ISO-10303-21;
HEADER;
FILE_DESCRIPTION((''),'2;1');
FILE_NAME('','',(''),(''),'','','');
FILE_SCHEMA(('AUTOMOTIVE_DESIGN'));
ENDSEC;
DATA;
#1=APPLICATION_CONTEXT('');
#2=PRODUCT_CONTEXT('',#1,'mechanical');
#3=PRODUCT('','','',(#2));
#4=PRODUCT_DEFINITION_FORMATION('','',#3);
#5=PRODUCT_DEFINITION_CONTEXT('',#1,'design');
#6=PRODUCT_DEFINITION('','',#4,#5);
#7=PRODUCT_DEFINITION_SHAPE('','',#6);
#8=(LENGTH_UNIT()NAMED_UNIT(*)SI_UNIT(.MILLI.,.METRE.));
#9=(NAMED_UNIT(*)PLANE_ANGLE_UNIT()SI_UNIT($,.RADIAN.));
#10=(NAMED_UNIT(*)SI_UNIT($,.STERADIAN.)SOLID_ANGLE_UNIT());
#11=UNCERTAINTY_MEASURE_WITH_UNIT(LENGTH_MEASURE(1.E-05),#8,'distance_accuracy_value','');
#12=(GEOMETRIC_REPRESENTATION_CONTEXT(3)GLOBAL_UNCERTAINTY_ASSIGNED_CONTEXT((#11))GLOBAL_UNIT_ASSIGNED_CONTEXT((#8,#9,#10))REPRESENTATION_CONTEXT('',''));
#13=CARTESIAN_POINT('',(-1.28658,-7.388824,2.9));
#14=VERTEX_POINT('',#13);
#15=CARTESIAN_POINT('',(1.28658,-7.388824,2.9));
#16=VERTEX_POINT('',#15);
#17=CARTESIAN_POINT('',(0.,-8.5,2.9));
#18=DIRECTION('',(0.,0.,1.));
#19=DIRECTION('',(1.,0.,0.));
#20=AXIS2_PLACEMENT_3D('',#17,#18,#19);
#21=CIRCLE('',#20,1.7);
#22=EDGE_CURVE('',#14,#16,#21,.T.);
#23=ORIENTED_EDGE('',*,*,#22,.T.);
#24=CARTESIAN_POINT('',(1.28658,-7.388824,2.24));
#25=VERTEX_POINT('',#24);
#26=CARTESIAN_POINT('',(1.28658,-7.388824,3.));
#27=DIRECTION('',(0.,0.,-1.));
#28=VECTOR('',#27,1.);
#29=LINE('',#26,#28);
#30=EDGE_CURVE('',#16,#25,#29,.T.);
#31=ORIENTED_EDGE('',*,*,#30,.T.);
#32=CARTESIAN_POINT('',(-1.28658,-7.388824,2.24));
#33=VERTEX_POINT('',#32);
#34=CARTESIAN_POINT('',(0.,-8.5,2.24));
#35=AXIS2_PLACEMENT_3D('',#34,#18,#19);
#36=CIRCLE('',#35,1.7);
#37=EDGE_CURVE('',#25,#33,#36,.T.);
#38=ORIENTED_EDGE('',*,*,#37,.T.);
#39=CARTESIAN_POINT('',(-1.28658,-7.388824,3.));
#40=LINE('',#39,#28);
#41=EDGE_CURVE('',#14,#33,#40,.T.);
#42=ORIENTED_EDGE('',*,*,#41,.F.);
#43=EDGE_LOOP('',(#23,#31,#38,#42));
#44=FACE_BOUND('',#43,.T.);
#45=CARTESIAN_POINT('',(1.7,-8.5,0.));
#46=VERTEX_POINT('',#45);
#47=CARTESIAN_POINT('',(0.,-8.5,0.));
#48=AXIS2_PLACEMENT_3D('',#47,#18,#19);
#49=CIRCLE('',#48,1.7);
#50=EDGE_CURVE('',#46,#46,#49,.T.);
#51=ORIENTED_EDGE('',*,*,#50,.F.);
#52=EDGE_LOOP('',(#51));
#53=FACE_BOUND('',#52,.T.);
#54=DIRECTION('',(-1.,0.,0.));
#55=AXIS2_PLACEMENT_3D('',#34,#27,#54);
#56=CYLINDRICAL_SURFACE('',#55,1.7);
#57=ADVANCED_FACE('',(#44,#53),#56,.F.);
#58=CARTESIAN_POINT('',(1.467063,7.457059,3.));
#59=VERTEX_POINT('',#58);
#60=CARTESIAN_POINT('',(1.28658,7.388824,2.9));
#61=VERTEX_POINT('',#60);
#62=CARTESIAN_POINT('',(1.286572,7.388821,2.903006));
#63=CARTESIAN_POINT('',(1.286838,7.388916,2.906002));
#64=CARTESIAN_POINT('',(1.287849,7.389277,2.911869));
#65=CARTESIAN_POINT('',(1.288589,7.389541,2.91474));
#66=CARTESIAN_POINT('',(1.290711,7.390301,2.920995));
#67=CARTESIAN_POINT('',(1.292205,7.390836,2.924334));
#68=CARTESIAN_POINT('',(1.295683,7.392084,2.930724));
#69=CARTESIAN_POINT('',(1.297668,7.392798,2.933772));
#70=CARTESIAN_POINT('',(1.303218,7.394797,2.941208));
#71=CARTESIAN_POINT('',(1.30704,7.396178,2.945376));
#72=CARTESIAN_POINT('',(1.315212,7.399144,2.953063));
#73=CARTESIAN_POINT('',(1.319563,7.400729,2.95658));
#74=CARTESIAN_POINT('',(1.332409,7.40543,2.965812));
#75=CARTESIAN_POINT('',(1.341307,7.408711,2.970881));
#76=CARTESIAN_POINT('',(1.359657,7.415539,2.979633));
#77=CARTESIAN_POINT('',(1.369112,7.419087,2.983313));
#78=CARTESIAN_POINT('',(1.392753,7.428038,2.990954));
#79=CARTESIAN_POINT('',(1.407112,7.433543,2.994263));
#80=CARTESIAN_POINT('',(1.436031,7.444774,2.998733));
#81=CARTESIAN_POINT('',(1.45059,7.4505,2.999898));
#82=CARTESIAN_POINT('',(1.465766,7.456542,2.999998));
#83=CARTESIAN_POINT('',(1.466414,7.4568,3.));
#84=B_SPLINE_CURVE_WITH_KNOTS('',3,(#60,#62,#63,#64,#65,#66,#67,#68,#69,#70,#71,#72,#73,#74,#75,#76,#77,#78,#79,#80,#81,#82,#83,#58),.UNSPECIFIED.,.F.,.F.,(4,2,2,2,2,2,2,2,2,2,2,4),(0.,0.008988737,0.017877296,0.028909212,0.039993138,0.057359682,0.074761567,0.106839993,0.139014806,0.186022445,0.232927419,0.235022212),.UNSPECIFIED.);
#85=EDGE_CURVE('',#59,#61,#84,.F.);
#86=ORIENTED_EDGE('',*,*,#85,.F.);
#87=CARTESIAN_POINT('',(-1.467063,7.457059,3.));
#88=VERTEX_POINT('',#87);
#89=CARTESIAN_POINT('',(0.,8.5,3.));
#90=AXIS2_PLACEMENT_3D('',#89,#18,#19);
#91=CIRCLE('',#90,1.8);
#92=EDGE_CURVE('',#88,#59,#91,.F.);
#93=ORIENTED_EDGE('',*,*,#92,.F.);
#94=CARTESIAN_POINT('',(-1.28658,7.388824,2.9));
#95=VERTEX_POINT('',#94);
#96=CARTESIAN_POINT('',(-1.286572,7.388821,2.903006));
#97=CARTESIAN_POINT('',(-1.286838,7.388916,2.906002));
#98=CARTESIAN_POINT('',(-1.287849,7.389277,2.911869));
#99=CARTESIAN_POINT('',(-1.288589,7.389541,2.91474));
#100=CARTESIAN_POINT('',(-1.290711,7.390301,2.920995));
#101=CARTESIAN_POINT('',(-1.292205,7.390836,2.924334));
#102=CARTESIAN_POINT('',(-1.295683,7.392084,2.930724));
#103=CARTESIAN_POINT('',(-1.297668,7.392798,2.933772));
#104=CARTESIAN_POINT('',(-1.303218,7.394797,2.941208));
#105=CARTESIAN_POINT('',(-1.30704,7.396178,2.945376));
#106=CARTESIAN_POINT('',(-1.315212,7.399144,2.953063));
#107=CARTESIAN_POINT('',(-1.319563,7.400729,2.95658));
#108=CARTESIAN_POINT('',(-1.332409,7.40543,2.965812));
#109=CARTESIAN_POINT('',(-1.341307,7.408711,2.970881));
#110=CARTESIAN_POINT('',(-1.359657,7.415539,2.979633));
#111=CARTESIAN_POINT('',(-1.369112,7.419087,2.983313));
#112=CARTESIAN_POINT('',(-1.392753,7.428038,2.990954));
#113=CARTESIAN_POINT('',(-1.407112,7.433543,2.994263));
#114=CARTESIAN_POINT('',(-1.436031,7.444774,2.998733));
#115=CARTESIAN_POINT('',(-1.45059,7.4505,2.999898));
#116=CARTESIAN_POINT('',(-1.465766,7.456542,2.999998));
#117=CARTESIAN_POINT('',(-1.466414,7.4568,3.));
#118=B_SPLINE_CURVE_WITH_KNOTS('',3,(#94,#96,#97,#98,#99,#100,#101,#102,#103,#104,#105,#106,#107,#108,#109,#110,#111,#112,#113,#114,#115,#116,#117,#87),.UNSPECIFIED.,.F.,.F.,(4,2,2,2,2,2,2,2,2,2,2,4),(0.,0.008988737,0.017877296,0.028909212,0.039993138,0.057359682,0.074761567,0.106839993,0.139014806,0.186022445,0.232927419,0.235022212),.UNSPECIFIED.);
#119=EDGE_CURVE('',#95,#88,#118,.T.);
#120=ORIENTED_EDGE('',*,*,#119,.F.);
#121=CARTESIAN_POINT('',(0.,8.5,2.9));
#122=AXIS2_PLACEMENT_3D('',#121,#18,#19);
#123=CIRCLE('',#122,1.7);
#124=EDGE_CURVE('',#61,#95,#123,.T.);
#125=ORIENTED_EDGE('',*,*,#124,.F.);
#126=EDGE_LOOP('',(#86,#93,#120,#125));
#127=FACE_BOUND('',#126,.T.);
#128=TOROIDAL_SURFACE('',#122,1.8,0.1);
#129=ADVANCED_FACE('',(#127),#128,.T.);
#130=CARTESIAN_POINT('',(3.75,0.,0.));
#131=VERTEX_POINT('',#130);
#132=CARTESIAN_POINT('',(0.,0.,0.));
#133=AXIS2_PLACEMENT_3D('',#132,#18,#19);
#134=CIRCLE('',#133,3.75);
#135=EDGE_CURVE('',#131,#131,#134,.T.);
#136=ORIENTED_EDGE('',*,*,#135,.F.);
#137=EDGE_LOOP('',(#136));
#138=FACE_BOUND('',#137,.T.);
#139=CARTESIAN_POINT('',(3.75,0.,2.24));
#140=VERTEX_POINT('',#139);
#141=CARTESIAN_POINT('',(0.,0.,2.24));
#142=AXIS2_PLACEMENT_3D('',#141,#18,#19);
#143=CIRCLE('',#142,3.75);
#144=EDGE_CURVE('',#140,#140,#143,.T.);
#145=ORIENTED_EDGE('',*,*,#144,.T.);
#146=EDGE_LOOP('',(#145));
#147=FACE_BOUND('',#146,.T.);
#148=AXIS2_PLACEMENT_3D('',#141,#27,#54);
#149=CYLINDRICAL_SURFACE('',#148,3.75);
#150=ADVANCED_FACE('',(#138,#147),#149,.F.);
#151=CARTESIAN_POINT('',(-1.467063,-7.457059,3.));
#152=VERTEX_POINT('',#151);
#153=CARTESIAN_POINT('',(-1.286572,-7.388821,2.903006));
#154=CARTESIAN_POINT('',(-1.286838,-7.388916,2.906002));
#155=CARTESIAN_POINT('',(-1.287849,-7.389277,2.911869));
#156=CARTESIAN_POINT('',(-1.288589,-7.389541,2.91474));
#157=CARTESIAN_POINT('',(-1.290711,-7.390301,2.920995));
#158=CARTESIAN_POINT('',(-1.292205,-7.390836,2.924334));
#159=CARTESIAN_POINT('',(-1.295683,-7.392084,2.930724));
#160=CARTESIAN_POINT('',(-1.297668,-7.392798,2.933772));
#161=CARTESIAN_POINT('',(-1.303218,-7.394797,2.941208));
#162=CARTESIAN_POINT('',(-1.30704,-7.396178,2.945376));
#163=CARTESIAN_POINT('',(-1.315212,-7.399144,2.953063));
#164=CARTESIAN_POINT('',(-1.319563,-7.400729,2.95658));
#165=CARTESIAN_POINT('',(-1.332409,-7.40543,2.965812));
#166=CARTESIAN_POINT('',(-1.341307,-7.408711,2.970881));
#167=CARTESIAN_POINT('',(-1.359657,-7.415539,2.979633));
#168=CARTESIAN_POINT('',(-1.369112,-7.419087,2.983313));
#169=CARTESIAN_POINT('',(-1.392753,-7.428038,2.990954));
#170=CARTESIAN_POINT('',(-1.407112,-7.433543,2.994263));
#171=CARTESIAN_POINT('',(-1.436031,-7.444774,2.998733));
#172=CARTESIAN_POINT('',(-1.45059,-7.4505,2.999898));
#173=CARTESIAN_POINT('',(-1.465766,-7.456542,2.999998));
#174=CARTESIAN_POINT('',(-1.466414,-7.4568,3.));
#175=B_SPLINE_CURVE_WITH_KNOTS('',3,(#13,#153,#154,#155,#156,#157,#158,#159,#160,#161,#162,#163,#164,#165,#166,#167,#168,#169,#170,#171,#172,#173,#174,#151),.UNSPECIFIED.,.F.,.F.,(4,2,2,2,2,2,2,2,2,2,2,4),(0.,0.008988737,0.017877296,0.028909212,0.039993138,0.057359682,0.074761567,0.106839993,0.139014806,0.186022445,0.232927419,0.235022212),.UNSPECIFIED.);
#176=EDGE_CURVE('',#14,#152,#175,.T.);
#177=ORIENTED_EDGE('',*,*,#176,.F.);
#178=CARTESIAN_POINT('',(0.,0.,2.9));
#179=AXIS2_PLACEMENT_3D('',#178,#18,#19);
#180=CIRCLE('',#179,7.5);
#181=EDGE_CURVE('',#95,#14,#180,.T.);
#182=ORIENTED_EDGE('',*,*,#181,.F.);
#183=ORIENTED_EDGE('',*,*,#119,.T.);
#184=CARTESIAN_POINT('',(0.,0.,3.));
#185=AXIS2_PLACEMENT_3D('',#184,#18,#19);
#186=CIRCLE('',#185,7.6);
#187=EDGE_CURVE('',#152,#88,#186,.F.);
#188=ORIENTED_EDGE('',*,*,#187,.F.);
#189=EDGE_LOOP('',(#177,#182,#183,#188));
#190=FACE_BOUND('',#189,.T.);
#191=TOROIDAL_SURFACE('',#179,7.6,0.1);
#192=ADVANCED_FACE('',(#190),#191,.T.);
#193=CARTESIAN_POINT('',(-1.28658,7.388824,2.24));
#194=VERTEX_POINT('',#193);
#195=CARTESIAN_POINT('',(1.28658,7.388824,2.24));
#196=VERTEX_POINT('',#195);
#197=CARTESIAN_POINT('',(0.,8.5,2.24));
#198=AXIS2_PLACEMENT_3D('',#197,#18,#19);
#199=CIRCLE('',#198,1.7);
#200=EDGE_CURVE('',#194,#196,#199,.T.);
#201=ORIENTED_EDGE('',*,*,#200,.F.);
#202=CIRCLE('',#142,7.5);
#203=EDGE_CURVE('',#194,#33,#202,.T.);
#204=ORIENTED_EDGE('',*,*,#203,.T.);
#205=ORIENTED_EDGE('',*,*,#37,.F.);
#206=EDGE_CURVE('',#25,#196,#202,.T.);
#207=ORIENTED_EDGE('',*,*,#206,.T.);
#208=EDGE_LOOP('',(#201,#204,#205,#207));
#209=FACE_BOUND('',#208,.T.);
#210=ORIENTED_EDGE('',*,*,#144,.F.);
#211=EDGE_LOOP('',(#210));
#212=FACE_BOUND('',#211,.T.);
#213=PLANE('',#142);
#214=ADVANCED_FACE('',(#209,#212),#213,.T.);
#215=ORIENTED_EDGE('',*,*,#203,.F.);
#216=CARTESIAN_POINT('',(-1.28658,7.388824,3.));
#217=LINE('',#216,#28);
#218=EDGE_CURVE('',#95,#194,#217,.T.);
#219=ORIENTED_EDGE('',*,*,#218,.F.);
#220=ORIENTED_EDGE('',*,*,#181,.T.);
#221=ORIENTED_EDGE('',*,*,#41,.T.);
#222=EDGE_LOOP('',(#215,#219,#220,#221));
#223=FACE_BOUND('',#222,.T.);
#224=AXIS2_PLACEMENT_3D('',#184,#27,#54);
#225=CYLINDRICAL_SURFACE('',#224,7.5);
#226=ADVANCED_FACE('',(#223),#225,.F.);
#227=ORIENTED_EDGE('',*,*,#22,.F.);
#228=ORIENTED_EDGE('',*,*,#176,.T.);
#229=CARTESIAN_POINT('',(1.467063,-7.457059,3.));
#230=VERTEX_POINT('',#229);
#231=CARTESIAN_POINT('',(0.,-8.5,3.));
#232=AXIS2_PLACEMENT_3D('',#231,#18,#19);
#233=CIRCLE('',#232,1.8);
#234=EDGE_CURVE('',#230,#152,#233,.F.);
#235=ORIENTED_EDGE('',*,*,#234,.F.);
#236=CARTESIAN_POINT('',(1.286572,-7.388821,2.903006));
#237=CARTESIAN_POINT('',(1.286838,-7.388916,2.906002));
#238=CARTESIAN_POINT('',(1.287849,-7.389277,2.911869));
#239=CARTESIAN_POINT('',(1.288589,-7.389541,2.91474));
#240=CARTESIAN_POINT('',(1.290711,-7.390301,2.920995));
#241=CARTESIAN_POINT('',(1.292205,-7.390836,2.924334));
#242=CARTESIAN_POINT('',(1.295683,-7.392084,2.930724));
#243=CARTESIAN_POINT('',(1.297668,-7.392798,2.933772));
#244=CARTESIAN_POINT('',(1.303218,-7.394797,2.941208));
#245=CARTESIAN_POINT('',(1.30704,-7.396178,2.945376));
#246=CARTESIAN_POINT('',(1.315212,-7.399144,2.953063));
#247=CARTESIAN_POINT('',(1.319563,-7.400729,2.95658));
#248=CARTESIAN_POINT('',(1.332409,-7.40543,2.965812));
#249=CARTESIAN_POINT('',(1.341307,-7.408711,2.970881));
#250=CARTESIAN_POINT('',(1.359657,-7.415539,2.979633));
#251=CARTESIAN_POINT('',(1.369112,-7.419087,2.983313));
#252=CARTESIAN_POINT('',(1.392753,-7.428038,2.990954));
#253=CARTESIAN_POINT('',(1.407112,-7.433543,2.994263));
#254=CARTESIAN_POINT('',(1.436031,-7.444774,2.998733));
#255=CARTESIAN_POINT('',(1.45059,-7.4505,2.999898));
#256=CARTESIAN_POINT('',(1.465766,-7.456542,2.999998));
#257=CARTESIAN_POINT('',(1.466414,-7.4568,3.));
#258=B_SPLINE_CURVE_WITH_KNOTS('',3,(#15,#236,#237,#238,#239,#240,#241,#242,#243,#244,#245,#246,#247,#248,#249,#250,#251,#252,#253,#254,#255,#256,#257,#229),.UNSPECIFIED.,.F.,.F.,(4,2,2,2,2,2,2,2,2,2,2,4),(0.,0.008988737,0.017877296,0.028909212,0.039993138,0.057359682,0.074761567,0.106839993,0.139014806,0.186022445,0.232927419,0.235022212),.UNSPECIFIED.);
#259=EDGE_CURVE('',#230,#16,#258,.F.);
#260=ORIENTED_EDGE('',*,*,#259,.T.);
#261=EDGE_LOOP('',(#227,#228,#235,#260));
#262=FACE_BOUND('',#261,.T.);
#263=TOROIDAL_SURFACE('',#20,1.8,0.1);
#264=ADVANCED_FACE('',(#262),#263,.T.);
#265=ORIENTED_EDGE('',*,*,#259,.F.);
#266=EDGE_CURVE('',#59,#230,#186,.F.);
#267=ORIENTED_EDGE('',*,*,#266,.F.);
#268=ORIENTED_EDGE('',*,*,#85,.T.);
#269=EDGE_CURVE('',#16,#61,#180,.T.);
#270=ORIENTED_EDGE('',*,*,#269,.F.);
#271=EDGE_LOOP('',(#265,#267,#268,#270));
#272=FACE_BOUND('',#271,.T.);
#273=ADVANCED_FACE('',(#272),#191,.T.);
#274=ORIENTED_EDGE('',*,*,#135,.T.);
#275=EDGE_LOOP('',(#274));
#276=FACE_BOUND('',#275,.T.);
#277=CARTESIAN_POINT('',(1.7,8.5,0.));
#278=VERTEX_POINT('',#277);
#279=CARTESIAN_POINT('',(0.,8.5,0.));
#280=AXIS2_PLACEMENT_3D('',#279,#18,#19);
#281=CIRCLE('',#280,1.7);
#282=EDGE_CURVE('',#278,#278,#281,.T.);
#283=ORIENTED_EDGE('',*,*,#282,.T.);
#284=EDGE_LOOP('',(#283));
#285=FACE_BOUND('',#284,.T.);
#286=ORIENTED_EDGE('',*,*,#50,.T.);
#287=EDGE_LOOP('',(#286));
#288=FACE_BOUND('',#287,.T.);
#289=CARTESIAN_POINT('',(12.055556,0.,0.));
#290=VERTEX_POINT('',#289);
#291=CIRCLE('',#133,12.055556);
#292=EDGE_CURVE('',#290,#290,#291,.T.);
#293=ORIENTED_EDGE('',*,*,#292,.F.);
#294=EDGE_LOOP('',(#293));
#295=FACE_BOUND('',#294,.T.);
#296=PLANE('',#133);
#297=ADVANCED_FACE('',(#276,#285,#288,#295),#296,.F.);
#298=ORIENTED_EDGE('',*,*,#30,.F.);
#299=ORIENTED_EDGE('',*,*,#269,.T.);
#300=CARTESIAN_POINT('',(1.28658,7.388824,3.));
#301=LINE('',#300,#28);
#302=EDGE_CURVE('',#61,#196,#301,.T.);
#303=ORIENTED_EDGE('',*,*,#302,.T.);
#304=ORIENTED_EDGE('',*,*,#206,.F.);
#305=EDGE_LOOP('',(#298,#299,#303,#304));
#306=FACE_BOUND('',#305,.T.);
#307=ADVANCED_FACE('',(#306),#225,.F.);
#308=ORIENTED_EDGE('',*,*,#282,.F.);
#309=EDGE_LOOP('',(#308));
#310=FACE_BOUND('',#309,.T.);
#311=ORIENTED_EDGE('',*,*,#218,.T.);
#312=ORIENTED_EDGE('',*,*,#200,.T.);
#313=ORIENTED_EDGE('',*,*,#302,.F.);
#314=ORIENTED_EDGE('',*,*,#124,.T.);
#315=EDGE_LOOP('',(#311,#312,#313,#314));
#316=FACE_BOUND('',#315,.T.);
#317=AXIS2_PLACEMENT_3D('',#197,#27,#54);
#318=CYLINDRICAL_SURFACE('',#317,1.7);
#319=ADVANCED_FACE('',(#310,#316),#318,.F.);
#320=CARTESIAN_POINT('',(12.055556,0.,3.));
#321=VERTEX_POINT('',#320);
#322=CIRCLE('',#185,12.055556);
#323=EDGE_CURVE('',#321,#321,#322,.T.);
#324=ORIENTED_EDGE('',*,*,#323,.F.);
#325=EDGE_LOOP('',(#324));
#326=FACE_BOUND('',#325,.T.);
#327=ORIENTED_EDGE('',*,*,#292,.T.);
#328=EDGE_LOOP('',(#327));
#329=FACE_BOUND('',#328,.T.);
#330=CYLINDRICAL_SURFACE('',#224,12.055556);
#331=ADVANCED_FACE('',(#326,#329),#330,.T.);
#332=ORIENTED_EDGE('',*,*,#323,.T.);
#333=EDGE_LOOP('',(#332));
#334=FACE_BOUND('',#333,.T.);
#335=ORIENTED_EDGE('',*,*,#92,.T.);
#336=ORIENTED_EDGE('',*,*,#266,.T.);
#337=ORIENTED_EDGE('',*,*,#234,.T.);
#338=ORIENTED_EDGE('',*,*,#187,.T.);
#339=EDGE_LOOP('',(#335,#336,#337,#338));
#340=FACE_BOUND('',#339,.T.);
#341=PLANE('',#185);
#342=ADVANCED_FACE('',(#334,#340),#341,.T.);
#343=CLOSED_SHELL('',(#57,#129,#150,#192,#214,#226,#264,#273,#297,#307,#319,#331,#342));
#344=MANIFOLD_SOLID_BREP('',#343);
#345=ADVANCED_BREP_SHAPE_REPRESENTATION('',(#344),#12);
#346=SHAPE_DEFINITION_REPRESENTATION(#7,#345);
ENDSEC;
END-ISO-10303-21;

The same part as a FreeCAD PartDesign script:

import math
import FreeCAD as App
import Part
import Sketcher
from FreeCAD import Vector


def edges_at(feature, points):
    """Names of the edges that pass closest to the given points."""
    edges = feature.Shape.Edges
    near = lambda p: min(range(len(edges)), key=lambda i: edges[i].distToShape(Part.Vertex(*p))[0])
    return sorted({f"Edge{near(p) + 1}" for p in points})

doc = App.newDocument("Part")
params = doc.addObject("Spreadsheet::Sheet", "Params")
for row, (alias, value) in enumerate([
    ("sketch1_diameter", "7.5 mm"),
    ("sketch1_radius", "7.5 mm"),
    ("sketch1_radius2", "1.7 mm"),
    ("pad1_length", "2.24 mm"),
    ("sketch2_radius", "1.7 mm"),
    ("sketch2_radius2", "7.5 mm"),
    ("pad2_length", "3 mm"),
    ("fillet_radius", "0.1 mm"),
], start=1):
    params.set(f"A{row}", alias)
    params.set(f"B{row}", "=" + value)
    params.setAlias(f"B{row}", alias)

body = doc.addObject("PartDesign::Body", "Body")

# Sketch on XY plane
sketch1 = body.newObject("Sketcher::SketchObject", "Sketch")
sketch1.AttachmentSupport = (doc.getObject("XY_Plane"), [""])
sketch1.MapMode = "FlatFace"
sketch1.addGeometry(Part.ArcOfCircle(Part.Circle(Vector(0, 0, 0), Vector(0, 0, 1), 7.5), math.radians(100), math.radians(190)), False)
sketch1.addGeometry(Part.ArcOfCircle(Part.Circle(Vector(0, 0, 0), Vector(0, 0, 1), 7.5), math.radians(-170), math.radians(-100)), False)
sketch1.addGeometry(Part.ArcOfCircle(Part.Circle(Vector(0, -8.5, 0), Vector(0, 0, 1), 1.7), math.radians(41), math.radians(139)), False)
sketch1.addGeometry(Part.ArcOfCircle(Part.Circle(Vector(0, 0, 0), Vector(0, 0, 1), 7.5), math.radians(-80), math.radians(10)), False)
sketch1.addGeometry(Part.ArcOfCircle(Part.Circle(Vector(0, 0, 0), Vector(0, 0, 1), 7.5), math.radians(10), math.radians(80)), False)
sketch1.addGeometry(Part.ArcOfCircle(Part.Circle(Vector(0, 8.5, 0), Vector(0, 0, 1), 1.7), math.radians(-139), math.radians(-41)), False)
sketch1.addGeometry(Part.Circle(Vector(0, 0, 0), Vector(0, 0, 1), 3.8), False)
sketch1.addConstraint(Sketcher.Constraint("Tangent", 0, 2, 1, 1))
sketch1.addConstraint(Sketcher.Constraint("Coincident", 1, 2, 2, 2))
sketch1.addConstraint(Sketcher.Constraint("Coincident", 2, 1, 3, 1))
sketch1.addConstraint(Sketcher.Constraint("Tangent", 3, 2, 4, 1))
sketch1.addConstraint(Sketcher.Constraint("Coincident", 4, 2, 5, 2))
sketch1.addConstraint(Sketcher.Constraint("Coincident", 5, 1, 0, 1))
sketch1.addConstraint(Sketcher.Constraint("Coincident", 0, 3, -1, 1))
sketch1.addConstraint(Sketcher.Constraint("Coincident", 3, 3, -1, 1))
sketch1.addConstraint(Sketcher.Constraint("Coincident", 6, 3, -1, 1))
sketch1.addConstraint(Sketcher.Constraint("Equal", 0, 1))
sketch1.addConstraint(Sketcher.Constraint("Equal", 1, 3))
sketch1.addConstraint(Sketcher.Constraint("Equal", 3, 4))
sketch1.addConstraint(Sketcher.Constraint("Equal", 2, 5))
sketch1.addConstraint(Sketcher.Constraint("Symmetric", 2, 3, 5, 3, -1, 1))
sketch1.addConstraint(Sketcher.Constraint("PointOnObject", 2, 3, -2))
sketch1.addConstraint(Sketcher.Constraint("Diameter", 6, 7.5))
sketch1.addConstraint(Sketcher.Constraint("Radius", 0, 7.5))
sketch1.addConstraint(Sketcher.Constraint("Radius", 2, 1.7))
sketch1.addConstraint(Sketcher.Constraint("DistanceY", 2, 3, 5, 3, 17.0))
sketch1.addConstraint(Sketcher.Constraint("DistanceX", 0, 2, -1, 1, 7.382691))
sketch1.addConstraint(Sketcher.Constraint("DistanceX", -1, 1, 3, 2, 7.382691))
sketch1.setExpression("Constraints[15]", "Params.sketch1_diameter")
sketch1.setExpression("Constraints[16]", "Params.sketch1_radius")
sketch1.setExpression("Constraints[17]", "Params.sketch1_radius2")
pad1 = body.newObject("PartDesign::Pad", "Pad")
pad1.Profile = sketch1
pad1.setExpression("Length", "Params.pad1_length")

# Sketch on XY plane
sketch2 = body.newObject("Sketcher::SketchObject", "Sketch001")
sketch2.AttachmentSupport = (doc.getObject("XY_Plane"), [""])
sketch2.MapMode = "FlatFace"
sketch2.addGeometry(Part.Circle(Vector(0, 0, 0), Vector(0, 0, 1), 12.1), False)
sketch2.addGeometry(Part.ArcOfCircle(Part.Circle(Vector(0, -8.5, 0), Vector(0, 0, 1), 1.7), math.radians(139), math.radians(360)), False)
sketch2.addGeometry(Part.ArcOfCircle(Part.Circle(Vector(0, 0, 0), Vector(0, 0, 1), 7.5), math.radians(-170), math.radians(-100)), False)
sketch2.addGeometry(Part.ArcOfCircle(Part.Circle(Vector(0, 0, 0), Vector(0, 0, 1), 7.5), math.radians(100), math.radians(190)), False)
sketch2.addGeometry(Part.ArcOfCircle(Part.Circle(Vector(0, 8.5, 0), Vector(0, 0, 1), 1.7), math.radians(0), math.radians(221)), False)
sketch2.addGeometry(Part.ArcOfCircle(Part.Circle(Vector(0, 8.5, 0), Vector(0, 0, 1), 1.7), math.radians(-41), math.radians(0)), False)
sketch2.addGeometry(Part.ArcOfCircle(Part.Circle(Vector(0, 0, 0), Vector(0, 0, 1), 7.5), math.radians(10), math.radians(80)), False)
sketch2.addGeometry(Part.ArcOfCircle(Part.Circle(Vector(0, 0, 0), Vector(0, 0, 1), 7.5), math.radians(-80), math.radians(10)), False)
sketch2.addGeometry(Part.ArcOfCircle(Part.Circle(Vector(0, -8.5, 0), Vector(0, 0, 1), 1.7), math.radians(0), math.radians(41)), False)
sketch2.addConstraint(Sketcher.Constraint("Coincident", 1, 1, 2, 2))
sketch2.addConstraint(Sketcher.Constraint("Tangent", 2, 1, 3, 2))
sketch2.addConstraint(Sketcher.Constraint("Coincident", 3, 1, 4, 2))
sketch2.addConstraint(Sketcher.Constraint("Tangent", 4, 1, 5, 2))
sketch2.addConstraint(Sketcher.Constraint("Coincident", 5, 1, 6, 2))
sketch2.addConstraint(Sketcher.Constraint("Tangent", 6, 1, 7, 2))
sketch2.addConstraint(Sketcher.Constraint("Coincident", 7, 1, 8, 2))
sketch2.addConstraint(Sketcher.Constraint("Tangent", 8, 1, 1, 2))
sketch2.addConstraint(Sketcher.Constraint("Coincident", 0, 3, -1, 1))
sketch2.addConstraint(Sketcher.Constraint("Coincident", 2, 3, -1, 1))
sketch2.addConstraint(Sketcher.Constraint("Coincident", 6, 3, -1, 1))
sketch2.addConstraint(Sketcher.Constraint("Equal", 2, 3))
sketch2.addConstraint(Sketcher.Constraint("Equal", 1, 4))
sketch2.addConstraint(Sketcher.Constraint("Equal", 4, 5))
sketch2.addConstraint(Sketcher.Constraint("Equal", 3, 6))
sketch2.addConstraint(Sketcher.Constraint("Equal", 6, 7))
sketch2.addConstraint(Sketcher.Constraint("Equal", 5, 8))
sketch2.addConstraint(Sketcher.Constraint("Symmetric", 1, 3, 4, 3, -1, 1))
sketch2.addConstraint(Sketcher.Constraint("Symmetric", 4, 1, 8, 1, -1))
sketch2.addConstraint(Sketcher.Constraint("Horizontal", 5, 3, 4, 1))
sketch2.addConstraint(Sketcher.Constraint("Radius", 1, 1.7))
sketch2.addConstraint(Sketcher.Constraint("Radius", 2, 7.5))
sketch2.addConstraint(Sketcher.Constraint("DistanceY", 1, 3, 4, 3, 17.0))
sketch2.addConstraint(Sketcher.Constraint("Diameter", 0, 24.111111))
sketch2.addConstraint(Sketcher.Constraint("DistanceX", 2, 1, -1, 1, 7.382691))
sketch2.addConstraint(Sketcher.Constraint("DistanceX", -1, 1, 6, 1, 7.382691))
sketch2.setExpression("Constraints[20]", "Params.sketch2_radius")
sketch2.setExpression("Constraints[21]", "Params.sketch2_radius2")
pad2 = body.newObject("PartDesign::Pad", "Pad001")
pad2.Profile = sketch2
pad2.setExpression("Length", "Params.pad2_length")
doc.recompute()

fillet = body.newObject("PartDesign::Fillet", "Fillet")
fillet.Base = (pad2, edges_at(pad2, [
    (6.145, -4.301, 3),
    (-6.145, 4.301, 3),
    (-0.593, 10.093, 3),
    (-0.593, -10.093, 3),
]))
fillet.setExpression("Radius", "Params.fillet_radius")

doc.recompute()
